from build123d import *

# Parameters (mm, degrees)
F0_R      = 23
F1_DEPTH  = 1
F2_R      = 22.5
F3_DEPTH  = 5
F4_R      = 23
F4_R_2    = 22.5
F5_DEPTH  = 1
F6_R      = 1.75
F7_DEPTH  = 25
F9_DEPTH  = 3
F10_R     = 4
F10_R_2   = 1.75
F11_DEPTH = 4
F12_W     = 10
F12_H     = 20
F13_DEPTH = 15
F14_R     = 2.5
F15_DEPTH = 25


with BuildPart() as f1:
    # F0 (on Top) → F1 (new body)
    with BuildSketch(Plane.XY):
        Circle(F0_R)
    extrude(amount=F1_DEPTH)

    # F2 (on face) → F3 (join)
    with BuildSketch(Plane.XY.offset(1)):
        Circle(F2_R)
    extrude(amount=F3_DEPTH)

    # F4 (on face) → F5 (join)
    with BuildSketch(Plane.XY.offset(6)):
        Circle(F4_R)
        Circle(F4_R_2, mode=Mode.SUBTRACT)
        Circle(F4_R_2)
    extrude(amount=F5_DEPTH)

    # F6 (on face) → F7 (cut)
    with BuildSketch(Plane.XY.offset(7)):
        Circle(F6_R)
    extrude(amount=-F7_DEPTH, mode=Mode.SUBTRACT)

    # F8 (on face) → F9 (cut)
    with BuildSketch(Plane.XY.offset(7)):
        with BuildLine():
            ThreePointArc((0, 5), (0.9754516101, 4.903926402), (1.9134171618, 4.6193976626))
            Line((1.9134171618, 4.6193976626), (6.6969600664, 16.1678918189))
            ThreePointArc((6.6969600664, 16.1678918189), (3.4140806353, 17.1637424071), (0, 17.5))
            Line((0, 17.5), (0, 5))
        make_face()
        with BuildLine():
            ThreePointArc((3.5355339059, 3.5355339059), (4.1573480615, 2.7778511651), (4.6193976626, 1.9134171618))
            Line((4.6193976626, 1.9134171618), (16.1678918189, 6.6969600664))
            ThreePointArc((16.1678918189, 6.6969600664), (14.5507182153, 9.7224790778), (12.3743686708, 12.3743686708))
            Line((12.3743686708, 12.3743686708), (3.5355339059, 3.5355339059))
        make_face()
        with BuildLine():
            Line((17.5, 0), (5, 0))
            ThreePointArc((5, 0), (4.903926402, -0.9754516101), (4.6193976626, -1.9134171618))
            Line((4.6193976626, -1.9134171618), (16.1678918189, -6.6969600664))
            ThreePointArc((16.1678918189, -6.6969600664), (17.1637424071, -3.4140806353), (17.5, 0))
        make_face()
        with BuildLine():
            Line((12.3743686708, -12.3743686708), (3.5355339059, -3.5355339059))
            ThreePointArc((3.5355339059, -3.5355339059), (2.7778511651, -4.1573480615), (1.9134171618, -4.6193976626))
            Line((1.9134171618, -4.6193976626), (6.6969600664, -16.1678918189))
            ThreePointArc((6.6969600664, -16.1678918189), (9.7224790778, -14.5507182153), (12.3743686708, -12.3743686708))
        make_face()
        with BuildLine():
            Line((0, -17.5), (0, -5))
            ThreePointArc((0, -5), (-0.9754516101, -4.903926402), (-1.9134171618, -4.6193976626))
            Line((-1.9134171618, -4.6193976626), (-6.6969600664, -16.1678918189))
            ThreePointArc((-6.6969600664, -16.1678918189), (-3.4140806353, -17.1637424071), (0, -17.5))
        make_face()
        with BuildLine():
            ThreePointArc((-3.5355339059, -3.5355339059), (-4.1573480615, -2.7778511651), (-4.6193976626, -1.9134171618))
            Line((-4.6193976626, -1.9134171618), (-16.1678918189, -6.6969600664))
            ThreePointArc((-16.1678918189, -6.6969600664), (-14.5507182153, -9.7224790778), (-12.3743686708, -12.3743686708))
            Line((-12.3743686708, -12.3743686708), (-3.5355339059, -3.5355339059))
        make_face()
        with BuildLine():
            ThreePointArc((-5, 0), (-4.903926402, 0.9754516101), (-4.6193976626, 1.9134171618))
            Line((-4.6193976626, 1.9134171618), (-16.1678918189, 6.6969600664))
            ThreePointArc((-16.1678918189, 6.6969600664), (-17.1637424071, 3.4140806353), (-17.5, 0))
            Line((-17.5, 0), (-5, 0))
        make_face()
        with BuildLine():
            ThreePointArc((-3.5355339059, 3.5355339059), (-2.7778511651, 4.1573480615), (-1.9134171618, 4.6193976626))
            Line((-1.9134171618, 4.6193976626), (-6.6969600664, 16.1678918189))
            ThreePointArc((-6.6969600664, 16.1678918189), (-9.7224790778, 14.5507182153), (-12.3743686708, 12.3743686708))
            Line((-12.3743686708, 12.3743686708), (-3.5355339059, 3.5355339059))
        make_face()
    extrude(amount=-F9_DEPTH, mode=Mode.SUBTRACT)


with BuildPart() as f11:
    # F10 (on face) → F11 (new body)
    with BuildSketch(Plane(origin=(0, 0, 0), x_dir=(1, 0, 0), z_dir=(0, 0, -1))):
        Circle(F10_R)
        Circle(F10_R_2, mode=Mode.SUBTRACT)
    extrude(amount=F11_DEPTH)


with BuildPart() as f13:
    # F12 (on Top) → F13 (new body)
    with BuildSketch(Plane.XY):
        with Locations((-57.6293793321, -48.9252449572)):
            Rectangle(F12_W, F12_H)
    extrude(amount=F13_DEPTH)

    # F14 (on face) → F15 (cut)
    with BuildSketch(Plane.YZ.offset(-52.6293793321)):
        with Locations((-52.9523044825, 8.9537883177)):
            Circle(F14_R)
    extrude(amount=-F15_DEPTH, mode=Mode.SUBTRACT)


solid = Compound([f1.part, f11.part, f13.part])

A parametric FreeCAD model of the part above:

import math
import FreeCAD as App
import Part
import Sketcher

V = App.Vector
Q = App.Units.Quantity

doc = App.newDocument("Part")
body = doc.addObject("PartDesign::Body", "Body")

sketch1 = body.newObject("Sketcher::SketchObject", "Sketch")
sketch1.AttachmentSupport = (doc.getObject("XY_Plane"), [""])
sketch1.MapMode = "FlatFace"
sketch1.addGeometry(Part.Circle(V(0, 0, 0), V(0, 0, 1), 23), False)
sketch1.addConstraint([
    Sketcher.Constraint("Coincident", 0, 3, -1, 1),
    Sketcher.Constraint("Diameter", 0, Q("46 mm")),
])
pad1 = body.newObject("PartDesign::Pad", "Pad")
pad1.Profile = sketch1
pad1.Length = 1

sketch2 = body.newObject("Sketcher::SketchObject", "Sketch001")
sketch2.AttachmentSupport = (doc.getObject("XY_Plane"), [""])
sketch2.MapMode = "FlatFace"
sketch2.AttachmentOffset = App.Placement(V(0, 0, 1), App.Rotation())
sketch2.addGeometry(Part.Circle(V(0, 0, 0), V(0, 0, 1), 22), False)
sketch2.addConstraint([
    Sketcher.Constraint("Coincident", 0, 3, -1, 1),
    Sketcher.Constraint("Diameter", 0, Q("45 mm")),
])
pad2 = body.newObject("PartDesign::Pad", "Pad001")
pad2.Profile = sketch2
pad2.Length = 5

sketch3 = body.newObject("Sketcher::SketchObject", "Sketch002")
sketch3.AttachmentSupport = (doc.getObject("XY_Plane"), [""])
sketch3.MapMode = "FlatFace"
sketch3.AttachmentOffset = App.Placement(V(0, 0, 6), App.Rotation())
sketch3.addGeometry(Part.Circle(V(0, 0, 0), V(0, 0, 1), 23), False)
sketch3.addConstraint([
    Sketcher.Constraint("Coincident", 0, 3, -1, 1),
    Sketcher.Constraint("Diameter", 0, Q("46 mm")),
])
pad3 = body.newObject("PartDesign::Pad", "Pad002")
pad3.Profile = sketch3
pad3.Length = 1

sketch4 = body.newObject("Sketcher::SketchObject", "Sketch003")
sketch4.AttachmentSupport = (doc.getObject("XY_Plane"), [""])
sketch4.MapMode = "FlatFace"
sketch4.AttachmentOffset = App.Placement(V(0, 0, 7), App.Rotation())
sketch4.addGeometry(Part.Circle(V(0, 0, 0), V(0, 0, 1), 1.8), False)
sketch4.addConstraint([
    Sketcher.Constraint("Coincident", 0, 3, -1, 1),
    Sketcher.Constraint("Diameter", 0, Q("3.5 mm")),
])
pocket1 = body.newObject("PartDesign::Pocket", "Pocket")
pocket1.Profile = sketch4
pocket1.Length = 25

sketch5 = body.newObject("Sketcher::SketchObject", "Sketch004")
sketch5.AttachmentSupport = (doc.getObject("XY_Plane"), [""])
sketch5.MapMode = "FlatFace"
sketch5.AttachmentOffset = App.Placement(V(0, 0, 7), App.Rotation())
sketch5.addGeometry([
    Part.ArcOfCircle(Part.Circle(V(0, 0, 0), V(0, 0, 1), 5), math.radians(68), math.radians(90)),
    Part.LineSegment(V(1.9, 4.6, 0), V(6.7, 16.2, 0)),
    Part.ArcOfCircle(Part.Circle(V(0, 0, 0), V(0, 0, 1), 17.5), math.radians(68), math.radians(90)),
    Part.LineSegment(V(0, 17.5, 0), V(0, 5, 0)),
    Part.ArcOfCircle(Part.Circle(V(0, 0, 0), V(0, 0, 1), 5), math.radians(22), math.radians(45)),
    Part.LineSegment(V(4.6, 1.9, 0), V(16.2, 6.7, 0)),
    Part.ArcOfCircle(Part.Circle(V(0, 0, 0), V(0, 0, 1), 17.5), math.radians(23), math.radians(45)),
    Part.LineSegment(V(12.4, 12.4, 0), V(3.5, 3.5, 0)),
    Part.LineSegment(V(17.5, 0, 0), V(5, 0, 0)),
    Part.ArcOfCircle(Part.Circle(V(0, 0, 0), V(0, 0, 1), 5), math.radians(-22), math.radians(0)),
    Part.LineSegment(V(4.6, -1.9, 0), V(16.2, -6.7, 0)),
    Part.ArcOfCircle(Part.Circle(V(0, 0, 0), V(0, 0, 1), 17.5), math.radians(-22), math.radians(0)),
    Part.LineSegment(V(12.4, -12.4, 0), V(3.5, -3.5, 0)),
    Part.ArcOfCircle(Part.Circle(V(0, 0, 0), V(0, 0, 1), 5), math.radians(-68), math.radians(-45)),
    Part.LineSegment(V(1.9, -4.6, 0), V(6.7, -16.2, 0)),
    Part.ArcOfCircle(Part.Circle(V(0, 0, 0), V(0, 0, 1), 17.5), math.radians(-67), math.radians(-45)),
    Part.LineSegment(V(0, -17.5, 0), V(0, -5, 0)),
    Part.ArcOfCircle(Part.Circle(V(0, 0, 0), V(0, 0, 1), 5), math.radians(-112), math.radians(-90)),
    Part.LineSegment(V(-1.9, -4.6, 0), V(-6.7, -16.2, 0)),
    Part.ArcOfCircle(Part.Circle(V(0, 0, 0), V(0, 0, 1), 17.5), math.radians(-112), math.radians(-90)),
    Part.ArcOfCircle(Part.Circle(V(0, 0, 0), V(0, 0, 1), 5), math.radians(-158), math.radians(-135)),
    Part.LineSegment(V(-4.6, -1.9, 0), V(-16.2, -6.7, 0)),
    Part.ArcOfCircle(Part.Circle(V(0, 0, 0), V(0, 0, 1), 17.5), math.radians(-157), math.radians(-135)),
    Part.LineSegment(V(-12.4, -12.4, 0), V(-3.5, -3.5, 0)),
    Part.ArcOfCircle(Part.Circle(V(0, 0, 0), V(0, 0, 1), 5), math.radians(158), math.radians(180)),
    Part.LineSegment(V(-4.6, 1.9, 0), V(-16.2, 6.7, 0)),
    Part.ArcOfCircle(Part.Circle(V(0, 0, 0), V(0, 0, 1), 17.5), math.radians(158), math.radians(180)),
    Part.LineSegment(V(-17.5, 0, 0), V(-5, 0, 0)),
    Part.ArcOfCircle(Part.Circle(V(0, 0, 0), V(0, 0, 1), 5), math.radians(112), math.radians(135)),
    Part.LineSegment(V(-1.9, 4.6, 0), V(-6.7, 16.2, 0)),
    Part.ArcOfCircle(Part.Circle(V(0, 0, 0), V(0, 0, 1), 17.5), math.radians(113), math.radians(135)),
    Part.LineSegment(V(-12.4, 12.4, 0), V(-3.5, 3.5, 0)),
], False)
sketch5.addConstraint([
    Sketcher.Constraint("Coincident", 0, 1, 1, 1),
    Sketcher.Constraint("Coincident", 1, 2, 2, 1),
    Sketcher.Constraint("Coincident", 2, 2, 3, 1),
    Sketcher.Constraint("Coincident", 3, 2, 0, 2),
    Sketcher.Constraint("Coincident", 4, 1, 5, 1),
    Sketcher.Constraint("Coincident", 5, 2, 6, 1),
    Sketcher.Constraint("Coincident", 6, 2, 7, 1),
    Sketcher.Constraint("Coincident", 7, 2, 4, 2),
    Sketcher.Constraint("Coincident", 8, 2, 9, 2),
    Sketcher.Constraint("Coincident", 9, 1, 10, 1),
    Sketcher.Constraint("Coincident", 10, 2, 11, 1),
    Sketcher.Constraint("Coincident", 11, 2, 8, 1),
    Sketcher.Constraint("Coincident", 12, 2, 13, 2),
    Sketcher.Constraint("Coincident", 13, 1, 14, 1),
    Sketcher.Constraint("Coincident", 14, 2, 15, 1),
    Sketcher.Constraint("Coincident", 15, 2, 12, 1),
    Sketcher.Constraint("Coincident", 16, 2, 17, 2),
    Sketcher.Constraint("Coincident", 17, 1, 18, 1),
    Sketcher.Constraint("Coincident", 18, 2, 19, 1),
    Sketcher.Constraint("Coincident", 19, 2, 16, 1),
    Sketcher.Constraint("Coincident", 20, 1, 21, 1),
    Sketcher.Constraint("Coincident", 21, 2, 22, 1),
    Sketcher.Constraint("Coincident", 22, 2, 23, 1),
    Sketcher.Constraint("Coincident", 23, 2, 20, 2),
    Sketcher.Constraint("Coincident", 24, 1, 25, 1),
    Sketcher.Constraint("Coincident", 25, 2, 26, 1),
    Sketcher.Constraint("Coincident", 26, 2, 27, 1),
    Sketcher.Constraint("Coincident", 27, 2, 24, 2),
    Sketcher.Constraint("Coincident", 28, 1, 29, 1),
    Sketcher.Constraint("Coincident", 29, 2, 30, 1),
    Sketcher.Constraint("Coincident", 30, 2, 31, 1),
    Sketcher.Constraint("Coincident", 31, 2, 28, 2),
    Sketcher.Constraint("Vertical", 3),
    Sketcher.Constraint("Horizontal", 8),
    Sketcher.Constraint("Vertical", 16),
    Sketcher.Constraint("Horizontal", 27),
    Sketcher.Constraint("Coincident", 0, 3, -1, 1),
    Sketcher.Constraint("Coincident", 2, 3, -1, 1),
    Sketcher.Constraint("Coincident", 4, 3, -1, 1),
    Sketcher.Constraint("Coincident", 6, 3, -1, 1),
    Sketcher.Constraint("Coincident", 9, 3, -1, 1),
    Sketcher.Constraint("Coincident", 11, 3, -1, 1),
    Sketcher.Constraint("Coincident", 13, 3, -1, 1),
    Sketcher.Constraint("Coincident", 15, 3, -1, 1),
    Sketcher.Constraint("Coincident", 17, 3, -1, 1),
    Sketcher.Constraint("Coincident", 19, 3, -1, 1),
    Sketcher.Constraint("Coincident", 20, 3, -1, 1),
    Sketcher.Constraint("Coincident", 22, 3, -1, 1),
    Sketcher.Constraint("Coincident", 24, 3, -1, 1),
    Sketcher.Constraint("Coincident", 26, 3, -1, 1),
    Sketcher.Constraint("Coincident", 28, 3, -1, 1),
    Sketcher.Constraint("Coincident", 30, 3, -1, 1),
    Sketcher.Constraint("Equal", 0, 4),
    Sketcher.Constraint("Equal", 2, 6),
    Sketcher.Constraint("Equal", 4, 9),
    Sketcher.Constraint("Equal", 6, 11),
    Sketcher.Constraint("Equal", 9, 13),
    Sketcher.Constraint("Equal", 11, 15),
    Sketcher.Constraint("Equal", 13, 17),
    Sketcher.Constraint("Equal", 15, 19),
    Sketcher.Constraint("Equal", 17, 20),
    Sketcher.Constraint("Equal", 19, 22),
    Sketcher.Constraint("Equal", 20, 24),
    Sketcher.Constraint("Equal", 22, 26),
    Sketcher.Constraint("Equal", 24, 28),
    Sketcher.Constraint("Equal", 26, 30),
    Sketcher.Constraint("PointOnObject", 2, 2, -2),
    Sketcher.Constraint("PointOnObject", 8, 2, -1),
    Sketcher.Constraint("PointOnObject", 16, 2, -2),
    Sketcher.Constraint("PointOnObject", 26, 2, -1),
    Sketcher.Constraint("Perpendicular", 1, 10),
    Sketcher.Constraint("Perpendicular", 7, 12),
    Sketcher.Constraint("Perpendicular", 5, 14),
    Sketcher.Constraint("Perpendicular", 10, 18),
    Sketcher.Constraint("Perpendicular", 14, 21),
    Sketcher.Constraint("Perpendicular", 12, 23),
    Sketcher.Constraint("Perpendicular", 18, 25),
    Sketcher.Constraint("Perpendicular", 21, 29),
    Sketcher.Constraint("Perpendicular", 23, 31),
    Sketcher.Constraint("Horizontal", 13, 1, 17, 1),
    Sketcher.Constraint("Horizontal", 14, 2, 18, 2),
    Sketcher.Constraint("Horizontal", 9, 1, 20, 1),
    Sketcher.Constraint("Horizontal", 15, 2, 22, 2),
    Sketcher.Constraint("Horizontal", 12, 2, 23, 2),
    Sketcher.Constraint("Horizontal", 4, 1, 24, 1),
    Sketcher.Constraint("Horizontal", 0, 1, 28, 1),
    Sketcher.Constraint("Horizontal", 6, 2, 30, 2),
    Sketcher.Constraint("Vertical", 4, 1, 9, 1),
    Sketcher.Constraint("Vertical", 7, 2, 12, 2),
    Sketcher.Constraint("Vertical", 0, 1, 13, 1),
    Sketcher.Constraint("Radius", 0, Q("5 mm")),
    Sketcher.Constraint("Radius", 2, Q("17.5 mm")),
    Sketcher.Constraint("Angle", 1, Q("67.5 deg")),
    Sketcher.Constraint("DistanceX", -1, 1, 1, 2, Q("6.69696 mm")),
    Sketcher.Constraint("DistanceX", -1, 1, 5, 2, Q("16.167892 mm")),
    Sketcher.Constraint("DistanceX", -1, 1, 6, 2, Q("12.374369 mm")),
])
pocket2 = body.newObject("PartDesign::Pocket", "Pocket001")
pocket2.Profile = sketch5
pocket2.Length = 3
body2 = doc.addObject("PartDesign::Body", "Body001")

sketch6 = body2.newObject("Sketcher::SketchObject", "Sketch005")
sketch6.AttachmentSupport = (doc.getObject("XY_Plane001"), [""])
sketch6.MapMode = "FlatFace"
sketch6.addGeometry([
    Part.Circle(V(0, 0, 0), V(0, 0, 1), 4),
    Part.Circle(V(0, 0, 0), V(0, 0, 1), 1.8),
], False)
sketch6.addConstraint([
    Sketcher.Constraint("Coincident", 0, 3, -1, 1),
    Sketcher.Constraint("Coincident", 1, 3, -1, 1),
    Sketcher.Constraint("Diameter", 0, Q("8 mm")),
    Sketcher.Constraint("Diameter", 1, Q("3.5 mm")),
])
pad4 = body2.newObject("PartDesign::Pad", "Pad003")
pad4.Profile = sketch6
pad4.Length = 4
pad4.Reversed = True
body3 = doc.addObject("PartDesign::Body", "Body002")

sketch7 = body3.newObject("Sketcher::SketchObject", "Sketch006")
sketch7.AttachmentSupport = (doc.getObject("XY_Plane002"), [""])
sketch7.MapMode = "FlatFace"
sketch7.addGeometry([
    Part.LineSegment(V(-63, -39, 0), V(-63, -59, 0)),
    Part.LineSegment(V(-63, -59, 0), V(-53, -59, 0)),
    Part.LineSegment(V(-53, -59, 0), V(-53, -39, 0)),
    Part.LineSegment(V(-53, -39, 0), V(-63, -39, 0)),
], False)
sketch7.addConstraint([
    Sketcher.Constraint("Coincident", 0, 2, 1, 1),
    Sketcher.Constraint("Coincident", 1, 2, 2, 1),
    Sketcher.Constraint("Coincident", 2, 2, 3, 1),
    Sketcher.Constraint("Coincident", 3, 2, 0, 1),
    Sketcher.Constraint("Vertical", 0),
    Sketcher.Constraint("Horizontal", 1),
    Sketcher.Constraint("Vertical", 2),
    Sketcher.Constraint("Horizontal", 3),
    Sketcher.Constraint("DistanceX", 1, 1, 1, 2, Q("10 mm")),
    Sketcher.Constraint("DistanceY", 0, 2, 0, 1, Q("20 mm")),
    Sketcher.Constraint("DistanceX", 0, 2, -1, 1, Q("62.629379 mm")),
    Sketcher.Constraint("DistanceY", 0, 2, -1, 1, Q("58.925245 mm")),
])
pad5 = body3.newObject("PartDesign::Pad", "Pad004")
pad5.Profile = sketch7
pad5.Length = 15

sketch8 = body3.newObject("Sketcher::SketchObject", "Sketch007")
sketch8.AttachmentSupport = (doc.getObject("YZ_Plane002"), [""])
sketch8.MapMode = "FlatFace"
sketch8.AttachmentOffset = App.Placement(V(0, 0, -52.629379), App.Rotation())
sketch8.addGeometry(Part.Circle(V(-53, 9, 0), V(0, 0, 1), 2.5), False)
sketch8.addConstraint([
    Sketcher.Constraint("Diameter", 0, Q("5 mm")),
    Sketcher.Constraint("DistanceY", -1, 1, 0, 3, Q("8.953788 mm")),
    Sketcher.Constraint("DistanceX", 0, 3, -1, 1, Q("52.952304 mm")),
])
pocket3 = body3.newObject("PartDesign::Pocket", "Pocket002")
pocket3.Profile = sketch8
pocket3.Length = 25

doc.recompute()
